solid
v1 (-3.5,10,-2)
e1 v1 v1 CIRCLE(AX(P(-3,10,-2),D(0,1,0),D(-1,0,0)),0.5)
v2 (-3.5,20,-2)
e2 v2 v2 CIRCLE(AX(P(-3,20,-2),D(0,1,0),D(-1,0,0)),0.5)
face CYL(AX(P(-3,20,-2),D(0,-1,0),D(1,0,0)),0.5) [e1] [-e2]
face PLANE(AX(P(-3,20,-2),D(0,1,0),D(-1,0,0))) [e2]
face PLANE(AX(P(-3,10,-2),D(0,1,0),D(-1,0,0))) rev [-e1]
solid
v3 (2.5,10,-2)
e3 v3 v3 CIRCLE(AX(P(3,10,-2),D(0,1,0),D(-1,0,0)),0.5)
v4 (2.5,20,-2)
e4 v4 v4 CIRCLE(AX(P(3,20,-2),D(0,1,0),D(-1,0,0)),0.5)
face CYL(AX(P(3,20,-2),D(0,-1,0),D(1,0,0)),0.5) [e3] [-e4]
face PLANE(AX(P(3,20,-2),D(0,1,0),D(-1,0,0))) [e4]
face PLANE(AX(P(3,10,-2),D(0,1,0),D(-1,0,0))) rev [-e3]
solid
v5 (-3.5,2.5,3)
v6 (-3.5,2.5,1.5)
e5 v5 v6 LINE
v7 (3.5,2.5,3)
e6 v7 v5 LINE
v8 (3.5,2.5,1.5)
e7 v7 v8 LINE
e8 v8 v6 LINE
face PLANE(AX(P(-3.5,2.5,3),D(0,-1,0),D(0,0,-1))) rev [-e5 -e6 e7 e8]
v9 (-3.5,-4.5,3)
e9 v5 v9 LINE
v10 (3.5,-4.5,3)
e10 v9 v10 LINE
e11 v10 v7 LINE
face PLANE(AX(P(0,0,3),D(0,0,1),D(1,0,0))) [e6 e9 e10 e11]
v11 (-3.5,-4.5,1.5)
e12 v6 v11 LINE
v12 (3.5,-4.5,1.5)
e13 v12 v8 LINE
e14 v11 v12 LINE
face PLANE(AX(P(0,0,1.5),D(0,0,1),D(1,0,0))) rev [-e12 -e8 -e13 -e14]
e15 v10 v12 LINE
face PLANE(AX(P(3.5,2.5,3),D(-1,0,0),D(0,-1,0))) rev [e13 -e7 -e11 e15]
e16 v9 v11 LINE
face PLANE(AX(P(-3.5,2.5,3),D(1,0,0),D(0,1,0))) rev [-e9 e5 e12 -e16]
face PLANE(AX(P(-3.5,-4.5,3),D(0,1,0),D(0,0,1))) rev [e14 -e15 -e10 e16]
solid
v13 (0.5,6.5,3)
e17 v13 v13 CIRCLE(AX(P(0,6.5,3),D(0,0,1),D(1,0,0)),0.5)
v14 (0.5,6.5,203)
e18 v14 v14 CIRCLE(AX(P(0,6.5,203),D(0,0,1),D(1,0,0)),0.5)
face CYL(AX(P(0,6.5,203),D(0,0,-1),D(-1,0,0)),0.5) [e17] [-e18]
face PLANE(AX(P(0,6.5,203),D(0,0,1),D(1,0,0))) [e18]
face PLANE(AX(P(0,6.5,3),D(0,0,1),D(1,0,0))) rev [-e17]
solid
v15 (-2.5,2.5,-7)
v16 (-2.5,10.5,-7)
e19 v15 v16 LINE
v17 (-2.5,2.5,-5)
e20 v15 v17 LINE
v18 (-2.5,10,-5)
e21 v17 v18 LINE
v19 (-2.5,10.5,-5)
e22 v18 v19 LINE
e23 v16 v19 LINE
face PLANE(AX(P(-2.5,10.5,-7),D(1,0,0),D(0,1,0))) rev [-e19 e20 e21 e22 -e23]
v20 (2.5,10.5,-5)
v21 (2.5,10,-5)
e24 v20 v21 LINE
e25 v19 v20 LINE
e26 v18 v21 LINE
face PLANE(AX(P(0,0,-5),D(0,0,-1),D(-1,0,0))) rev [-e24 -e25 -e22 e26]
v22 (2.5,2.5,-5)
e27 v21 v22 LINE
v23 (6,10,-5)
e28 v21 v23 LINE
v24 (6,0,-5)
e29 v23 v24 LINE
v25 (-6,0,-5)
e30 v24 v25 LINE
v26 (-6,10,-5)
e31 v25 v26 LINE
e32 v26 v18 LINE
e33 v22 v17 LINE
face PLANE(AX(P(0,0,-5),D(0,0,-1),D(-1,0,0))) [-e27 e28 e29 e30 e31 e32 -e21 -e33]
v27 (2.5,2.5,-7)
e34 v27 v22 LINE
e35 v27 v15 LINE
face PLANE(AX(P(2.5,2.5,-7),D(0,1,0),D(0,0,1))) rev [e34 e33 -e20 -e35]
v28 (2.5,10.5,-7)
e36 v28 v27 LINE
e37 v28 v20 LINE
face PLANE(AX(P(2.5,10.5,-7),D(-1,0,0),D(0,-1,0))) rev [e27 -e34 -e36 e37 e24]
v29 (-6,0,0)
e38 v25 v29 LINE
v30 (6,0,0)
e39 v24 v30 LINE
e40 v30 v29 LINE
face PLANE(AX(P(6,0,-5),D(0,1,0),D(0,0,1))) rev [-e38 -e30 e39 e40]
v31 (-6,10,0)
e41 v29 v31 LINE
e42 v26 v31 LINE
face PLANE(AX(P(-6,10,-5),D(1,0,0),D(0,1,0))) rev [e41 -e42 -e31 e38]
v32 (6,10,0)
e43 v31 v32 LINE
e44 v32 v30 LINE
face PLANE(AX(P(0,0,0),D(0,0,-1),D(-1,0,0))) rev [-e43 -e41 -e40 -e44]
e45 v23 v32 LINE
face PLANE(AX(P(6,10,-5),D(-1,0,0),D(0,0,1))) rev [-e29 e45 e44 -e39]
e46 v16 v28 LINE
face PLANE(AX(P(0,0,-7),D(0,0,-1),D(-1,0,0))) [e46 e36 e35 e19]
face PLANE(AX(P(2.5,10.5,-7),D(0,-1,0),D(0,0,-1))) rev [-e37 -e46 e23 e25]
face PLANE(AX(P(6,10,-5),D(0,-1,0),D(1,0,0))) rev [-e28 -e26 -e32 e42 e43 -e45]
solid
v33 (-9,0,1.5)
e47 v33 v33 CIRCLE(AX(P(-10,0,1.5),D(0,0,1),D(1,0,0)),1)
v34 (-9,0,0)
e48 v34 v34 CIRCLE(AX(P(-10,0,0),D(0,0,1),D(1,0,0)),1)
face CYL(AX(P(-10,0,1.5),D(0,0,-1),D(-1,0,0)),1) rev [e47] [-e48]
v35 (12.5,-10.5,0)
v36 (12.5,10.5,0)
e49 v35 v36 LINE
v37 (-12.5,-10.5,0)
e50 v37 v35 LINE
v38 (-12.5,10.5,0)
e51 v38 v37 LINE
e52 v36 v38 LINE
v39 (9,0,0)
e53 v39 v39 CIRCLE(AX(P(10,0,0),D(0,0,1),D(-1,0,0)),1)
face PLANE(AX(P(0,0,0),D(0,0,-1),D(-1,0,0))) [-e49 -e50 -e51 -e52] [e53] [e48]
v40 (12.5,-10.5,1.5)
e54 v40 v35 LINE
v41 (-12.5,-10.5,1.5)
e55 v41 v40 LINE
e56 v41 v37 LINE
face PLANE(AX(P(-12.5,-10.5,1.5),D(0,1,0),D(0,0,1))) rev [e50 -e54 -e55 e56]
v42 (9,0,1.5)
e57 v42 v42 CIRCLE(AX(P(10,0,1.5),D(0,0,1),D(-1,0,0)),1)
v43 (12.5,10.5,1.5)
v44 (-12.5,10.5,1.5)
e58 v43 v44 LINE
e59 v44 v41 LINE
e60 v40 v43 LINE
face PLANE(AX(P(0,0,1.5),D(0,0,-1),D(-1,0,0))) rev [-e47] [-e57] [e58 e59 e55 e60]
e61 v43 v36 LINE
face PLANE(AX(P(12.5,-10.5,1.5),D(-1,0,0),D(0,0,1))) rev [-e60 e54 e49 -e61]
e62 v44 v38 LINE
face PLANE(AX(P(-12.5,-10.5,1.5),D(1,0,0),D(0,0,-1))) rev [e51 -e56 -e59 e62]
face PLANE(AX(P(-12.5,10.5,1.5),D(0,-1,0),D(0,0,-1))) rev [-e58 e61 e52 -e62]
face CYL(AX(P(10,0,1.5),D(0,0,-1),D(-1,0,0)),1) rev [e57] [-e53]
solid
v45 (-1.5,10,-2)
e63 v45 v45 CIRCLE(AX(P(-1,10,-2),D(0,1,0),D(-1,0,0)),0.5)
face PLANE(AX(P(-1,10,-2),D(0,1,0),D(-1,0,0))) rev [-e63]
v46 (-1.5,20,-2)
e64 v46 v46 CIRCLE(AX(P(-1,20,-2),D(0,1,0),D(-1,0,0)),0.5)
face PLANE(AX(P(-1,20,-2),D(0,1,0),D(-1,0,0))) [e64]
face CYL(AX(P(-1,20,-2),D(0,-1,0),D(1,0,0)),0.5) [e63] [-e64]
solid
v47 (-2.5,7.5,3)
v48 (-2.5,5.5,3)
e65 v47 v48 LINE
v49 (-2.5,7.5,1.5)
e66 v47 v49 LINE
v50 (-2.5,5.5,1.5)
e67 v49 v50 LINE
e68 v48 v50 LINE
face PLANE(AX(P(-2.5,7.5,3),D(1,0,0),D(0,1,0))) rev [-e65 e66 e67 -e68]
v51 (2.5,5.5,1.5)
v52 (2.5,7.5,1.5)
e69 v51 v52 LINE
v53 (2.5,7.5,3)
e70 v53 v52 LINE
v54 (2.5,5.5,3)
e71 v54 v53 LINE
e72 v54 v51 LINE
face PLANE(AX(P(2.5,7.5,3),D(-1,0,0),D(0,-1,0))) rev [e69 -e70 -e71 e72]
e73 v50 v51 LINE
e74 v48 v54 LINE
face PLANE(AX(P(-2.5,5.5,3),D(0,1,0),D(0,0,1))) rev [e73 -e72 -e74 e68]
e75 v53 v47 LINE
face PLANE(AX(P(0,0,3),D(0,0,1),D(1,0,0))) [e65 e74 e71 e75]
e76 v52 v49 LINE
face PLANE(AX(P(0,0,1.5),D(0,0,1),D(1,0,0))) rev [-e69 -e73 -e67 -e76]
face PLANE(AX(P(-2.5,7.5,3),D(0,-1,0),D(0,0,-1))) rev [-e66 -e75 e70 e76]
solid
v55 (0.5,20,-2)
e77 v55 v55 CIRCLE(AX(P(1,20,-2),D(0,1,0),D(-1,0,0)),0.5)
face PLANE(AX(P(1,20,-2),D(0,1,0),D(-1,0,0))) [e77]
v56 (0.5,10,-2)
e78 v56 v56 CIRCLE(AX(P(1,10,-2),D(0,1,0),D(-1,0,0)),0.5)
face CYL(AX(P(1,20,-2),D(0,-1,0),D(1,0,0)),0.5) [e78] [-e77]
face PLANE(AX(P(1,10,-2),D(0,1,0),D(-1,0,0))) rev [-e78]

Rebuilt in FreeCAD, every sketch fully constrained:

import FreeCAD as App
import Part
import Sketcher
from FreeCAD import Vector


def add_polygon(sketch, points):
    """Adds a closed chain of lines whose ends are joined by coincident constraints."""
    first, n = sketch.GeometryCount, len(points)
    for a, b in zip(points, points[1:] + points[:1]):
        sketch.addGeometry(Part.LineSegment(App.Vector(*a, 0), App.Vector(*b, 0)), False)
    for i in range(n):
        sketch.addConstraint(Sketcher.Constraint("Coincident", first + i, 2, first + (i + 1) % n, 1))

doc = App.newDocument("Part")
body = doc.addObject("PartDesign::Body", "Body")

# Sketch on XY plane
sketch1 = body.newObject("Sketcher::SketchObject", "Sketch")
sketch1.AttachmentSupport = (doc.getObject("XY_Plane"), [""])
sketch1.MapMode = "FlatFace"
add_polygon(sketch1, [(-12.5, 10.5), (-12.5, -10.5), (12.5, -10.5), (12.5, 10.5)])  # lines 0-3
sketch1.addGeometry(Part.Circle(Vector(-10, 0, 0), Vector(0, 0, 1), 1), False)  # 4
sketch1.addGeometry(Part.Circle(Vector(10, 0, 0), Vector(0, 0, 1), 1), False)  # 5
sketch1.addConstraint([
    Sketcher.Constraint("Vertical", 0),
    Sketcher.Constraint("Horizontal", 1),
    Sketcher.Constraint("Vertical", 2),
    Sketcher.Constraint("Horizontal", 3),
    Sketcher.Constraint("Equal", 4, 5),
    Sketcher.Constraint("Symmetric", 4, 3, 5, 3, -1, 1),
    Sketcher.Constraint("Symmetric", 0, 2, 2, 2, -1, 1),
    Sketcher.Constraint("PointOnObject", 4, 3, -1),
    Sketcher.Constraint("Diameter", 4, 2.0),
    Sketcher.Constraint("DistanceX", 1, 1, 1, 2, 25.0),
    Sketcher.Constraint("DistanceY", 0, 2, 0, 1, 21.0),
    Sketcher.Constraint("DistanceX", 4, 3, -1, 1, 10.0),
])
pad1 = body.newObject("PartDesign::Pad", "Pad")
pad1.Profile = sketch1
pad1.Length = 1.5
body2 = doc.addObject("PartDesign::Body", "Body001")

# Sketch on XY plane
sketch2 = body2.newObject("Sketcher::SketchObject", "Sketch001")
sketch2.AttachmentSupport = (doc.getObject("XY_Plane001"), [""])
sketch2.MapMode = "FlatFace"
add_polygon(sketch2, [(6, 10), (6, 0), (-6, 0), (-6, 10)])  # lines 0-3
sketch2.addConstraint([
    Sketcher.Constraint("Vertical", 0),
    Sketcher.Constraint("Horizontal", 1),
    Sketcher.Constraint("Vertical", 2),
    Sketcher.Constraint("Horizontal", 3),
    Sketcher.Constraint("Symmetric", 0, 2, 1, 2, -1, 1),
    Sketcher.Constraint("DistanceX", 1, 2, 1, 1, 12.0),
    Sketcher.Constraint("DistanceY", 0, 2, 0, 1, 10.0),
])
pad2 = body2.newObject("PartDesign::Pad", "Pad001")
pad2.Profile = sketch2
pad2.Length = 5
pad2.Reversed = True

# Sketch on XY plane
sketch3 = body2.newObject("Sketcher::SketchObject", "Sketch002")
sketch3.AttachmentSupport = (doc.getObject("XY_Plane001"), [""])
sketch3.MapMode = "FlatFace"
sketch3.AttachmentOffset = App.Placement(Vector(0, 0, -5), App.Rotation())
add_polygon(sketch3, [(2.5, 10.5), (2.5, 2.5), (-2.5, 2.5), (-2.5, 10.5)])  # lines 0-3
sketch3.addConstraint([
    Sketcher.Constraint("Vertical", 0),
    Sketcher.Constraint("Horizontal", 1),
    Sketcher.Constraint("Vertical", 2),
    Sketcher.Constraint("Horizontal", 3),
    Sketcher.Constraint("DistanceX", 1, 2, 1, 1, 5.0),
    Sketcher.Constraint("DistanceY", 0, 2, 0, 1, 8.0),
    Sketcher.Constraint("DistanceX", -1, 1, 0, 2, 2.5),
    Sketcher.Constraint("DistanceY", -1, 1, 0, 2, 2.5),
])
pad3 = body2.newObject("PartDesign::Pad", "Pad002")
pad3.Profile = sketch3
pad3.Length = 2
pad3.Reversed = True
body3 = doc.addObject("PartDesign::Body", "Body002")

# Sketch on XY plane
sketch4 = body3.newObject("Sketcher::SketchObject", "Sketch003")
sketch4.AttachmentSupport = (doc.getObject("XY_Plane002"), [""])
sketch4.MapMode = "FlatFace"
sketch4.AttachmentOffset = App.Placement(Vector(0, 0, 1.5), App.Rotation())
add_polygon(sketch4, [(-2.5, 7.5), (-2.5, 5.5), (2.5, 5.5), (2.5, 7.5)])  # lines 0-3
sketch4.addConstraint([
    Sketcher.Constraint("Vertical", 0),
    Sketcher.Constraint("Horizontal", 1),
    Sketcher.Constraint("Vertical", 2),
    Sketcher.Constraint("Horizontal", 3),
    Sketcher.Constraint("DistanceX", 1, 1, 1, 2, 5.0),
    Sketcher.Constraint("DistanceY", 0, 2, 0, 1, 2.0),
    Sketcher.Constraint("DistanceX", 0, 2, -1, 1, 2.5),
    Sketcher.Constraint("DistanceY", -1, 1, 0, 2, 5.5),
])
pad4 = body3.newObject("PartDesign::Pad", "Pad003")
pad4.Profile = sketch4
pad4.Length = 1.5
body4 = doc.addObject("PartDesign::Body", "Body003")

# Sketch on XY plane
sketch5 = body4.newObject("Sketcher::SketchObject", "Sketch004")
sketch5.AttachmentSupport = (doc.getObject("XY_Plane003"), [""])
sketch5.MapMode = "FlatFace"
sketch5.AttachmentOffset = App.Placement(Vector(0, 0, 1.5), App.Rotation())
add_polygon(sketch5, [(-3.5, 2.5), (-3.5, -4.5), (3.5, -4.5), (3.5, 2.5)])  # lines 0-3
sketch5.addConstraint([
    Sketcher.Constraint("Vertical", 0),
    Sketcher.Constraint("Horizontal", 1),
    Sketcher.Constraint("Vertical", 2),
    Sketcher.Constraint("Horizontal", 3),
    Sketcher.Constraint("Equal", 3, 0),
    Sketcher.Constraint("DistanceX", 1, 1, 1, 2, 7.0),
    Sketcher.Constraint("DistanceX", 0, 2, -1, 1, 3.5),
    Sketcher.Constraint("DistanceY", 0, 2, -1, 1, 4.5),
])
pad5 = body4.newObject("PartDesign::Pad", "Pad004")
pad5.Profile = sketch5
pad5.Length = 1.5
body5 = doc.addObject("PartDesign::Body", "Body004")

# Sketch on XZ plane
sketch6 = body5.newObject("Sketcher::SketchObject", "Sketch005")
sketch6.AttachmentSupport = (doc.getObject("XZ_Plane004"), [""])
sketch6.MapMode = "FlatFace"
sketch6.AttachmentOffset = App.Placement(Vector(0, 0, -10), App.Rotation())
sketch6.addGeometry(Part.Circle(Vector(-3, -2, 0), Vector(0, 0, 1), 0.5), False)
sketch6.addConstraint([
    Sketcher.Constraint("Diameter", 0, 1.0),
    Sketcher.Constraint("DistanceX", 0, 3, -1, 1, 3.0),
    Sketcher.Constraint("DistanceY", 0, 3, -1, 1, 2.0),
])
pad6 = body5.newObject("PartDesign::Pad", "Pad005")
pad6.Profile = sketch6
pad6.Length = 10
pad6.Reversed = True
body6 = doc.addObject("PartDesign::Body", "Body005")

# Sketch on XZ plane
sketch7 = body6.newObject("Sketcher::SketchObject", "Sketch006")
sketch7.AttachmentSupport = (doc.getObject("XZ_Plane005"), [""])
sketch7.MapMode = "FlatFace"
sketch7.AttachmentOffset = App.Placement(Vector(0, 0, -10), App.Rotation())
sketch7.addGeometry(Part.Circle(Vector(-1, -2, 0), Vector(0, 0, 1), 0.5), False)
sketch7.addConstraint([
    Sketcher.Constraint("Diameter", 0, 1.0),
    Sketcher.Constraint("DistanceX", 0, 3, -1, 1, 1.0),
    Sketcher.Constraint("DistanceY", 0, 3, -1, 1, 2.0),
])
pad7 = body6.newObject("PartDesign::Pad", "Pad006")
pad7.Profile = sketch7
pad7.Length = 10
pad7.Reversed = True
body7 = doc.addObject("PartDesign::Body", "Body006")

# Sketch on XZ plane
sketch8 = body7.newObject("Sketcher::SketchObject", "Sketch007")
sketch8.AttachmentSupport = (doc.getObject("XZ_Plane006"), [""])
sketch8.MapMode = "FlatFace"
sketch8.AttachmentOffset = App.Placement(Vector(0, 0, -10), App.Rotation())
sketch8.addGeometry(Part.Circle(Vector(1, -2, 0), Vector(0, 0, 1), 0.5), False)
sketch8.addConstraint([
    Sketcher.Constraint("Diameter", 0, 1.0),
    Sketcher.Constraint("DistanceX", -1, 1, 0, 3, 1.0),
    Sketcher.Constraint("DistanceY", 0, 3, -1, 1, 2.0),
])
pad8 = body7.newObject("PartDesign::Pad", "Pad007")
pad8.Profile = sketch8
pad8.Length = 10
pad8.Reversed = True
body8 = doc.addObject("PartDesign::Body", "Body007")

# Sketch on XZ plane
sketch9 = body8.newObject("Sketcher::SketchObject", "Sketch008")
sketch9.AttachmentSupport = (doc.getObject("XZ_Plane007"), [""])
sketch9.MapMode = "FlatFace"
sketch9.AttachmentOffset = App.Placement(Vector(0, 0, -10), App.Rotation())
sketch9.addGeometry(Part.Circle(Vector(3, -2, 0), Vector(0, 0, 1), 0.5), False)
sketch9.addConstraint([
    Sketcher.Constraint("Diameter", 0, 1.0),
    Sketcher.Constraint("DistanceX", -1, 1, 0, 3, 3.0),
    Sketcher.Constraint("DistanceY", 0, 3, -1, 1, 2.0),
])
pad9 = body8.newObject("PartDesign::Pad", "Pad008")
pad9.Profile = sketch9
pad9.Length = 10
pad9.Reversed = True
body9 = doc.addObject("PartDesign::Body", "Body008")

# Sketch on XY plane
sketch10 = body9.newObject("Sketcher::SketchObject", "Sketch009")
sketch10.AttachmentSupport = (doc.getObject("XY_Plane008"), [""])
sketch10.MapMode = "FlatFace"
sketch10.AttachmentOffset = App.Placement(Vector(0, 0, 3), App.Rotation())
sketch10.addGeometry(Part.Circle(Vector(0, 6.5, 0), Vector(0, 0, 1), 0.5), False)
sketch10.addConstraint([
    Sketcher.Constraint("PointOnObject", 0, 3, -2),
    Sketcher.Constraint("Diameter", 0, 1.0),
    Sketcher.Constraint("DistanceY", -1, 1, 0, 3, 6.5),
])
pad10 = body9.newObject("PartDesign::Pad", "Pad009")
pad10.Profile = sketch10
pad10.Length = 200

doc.recompute()
